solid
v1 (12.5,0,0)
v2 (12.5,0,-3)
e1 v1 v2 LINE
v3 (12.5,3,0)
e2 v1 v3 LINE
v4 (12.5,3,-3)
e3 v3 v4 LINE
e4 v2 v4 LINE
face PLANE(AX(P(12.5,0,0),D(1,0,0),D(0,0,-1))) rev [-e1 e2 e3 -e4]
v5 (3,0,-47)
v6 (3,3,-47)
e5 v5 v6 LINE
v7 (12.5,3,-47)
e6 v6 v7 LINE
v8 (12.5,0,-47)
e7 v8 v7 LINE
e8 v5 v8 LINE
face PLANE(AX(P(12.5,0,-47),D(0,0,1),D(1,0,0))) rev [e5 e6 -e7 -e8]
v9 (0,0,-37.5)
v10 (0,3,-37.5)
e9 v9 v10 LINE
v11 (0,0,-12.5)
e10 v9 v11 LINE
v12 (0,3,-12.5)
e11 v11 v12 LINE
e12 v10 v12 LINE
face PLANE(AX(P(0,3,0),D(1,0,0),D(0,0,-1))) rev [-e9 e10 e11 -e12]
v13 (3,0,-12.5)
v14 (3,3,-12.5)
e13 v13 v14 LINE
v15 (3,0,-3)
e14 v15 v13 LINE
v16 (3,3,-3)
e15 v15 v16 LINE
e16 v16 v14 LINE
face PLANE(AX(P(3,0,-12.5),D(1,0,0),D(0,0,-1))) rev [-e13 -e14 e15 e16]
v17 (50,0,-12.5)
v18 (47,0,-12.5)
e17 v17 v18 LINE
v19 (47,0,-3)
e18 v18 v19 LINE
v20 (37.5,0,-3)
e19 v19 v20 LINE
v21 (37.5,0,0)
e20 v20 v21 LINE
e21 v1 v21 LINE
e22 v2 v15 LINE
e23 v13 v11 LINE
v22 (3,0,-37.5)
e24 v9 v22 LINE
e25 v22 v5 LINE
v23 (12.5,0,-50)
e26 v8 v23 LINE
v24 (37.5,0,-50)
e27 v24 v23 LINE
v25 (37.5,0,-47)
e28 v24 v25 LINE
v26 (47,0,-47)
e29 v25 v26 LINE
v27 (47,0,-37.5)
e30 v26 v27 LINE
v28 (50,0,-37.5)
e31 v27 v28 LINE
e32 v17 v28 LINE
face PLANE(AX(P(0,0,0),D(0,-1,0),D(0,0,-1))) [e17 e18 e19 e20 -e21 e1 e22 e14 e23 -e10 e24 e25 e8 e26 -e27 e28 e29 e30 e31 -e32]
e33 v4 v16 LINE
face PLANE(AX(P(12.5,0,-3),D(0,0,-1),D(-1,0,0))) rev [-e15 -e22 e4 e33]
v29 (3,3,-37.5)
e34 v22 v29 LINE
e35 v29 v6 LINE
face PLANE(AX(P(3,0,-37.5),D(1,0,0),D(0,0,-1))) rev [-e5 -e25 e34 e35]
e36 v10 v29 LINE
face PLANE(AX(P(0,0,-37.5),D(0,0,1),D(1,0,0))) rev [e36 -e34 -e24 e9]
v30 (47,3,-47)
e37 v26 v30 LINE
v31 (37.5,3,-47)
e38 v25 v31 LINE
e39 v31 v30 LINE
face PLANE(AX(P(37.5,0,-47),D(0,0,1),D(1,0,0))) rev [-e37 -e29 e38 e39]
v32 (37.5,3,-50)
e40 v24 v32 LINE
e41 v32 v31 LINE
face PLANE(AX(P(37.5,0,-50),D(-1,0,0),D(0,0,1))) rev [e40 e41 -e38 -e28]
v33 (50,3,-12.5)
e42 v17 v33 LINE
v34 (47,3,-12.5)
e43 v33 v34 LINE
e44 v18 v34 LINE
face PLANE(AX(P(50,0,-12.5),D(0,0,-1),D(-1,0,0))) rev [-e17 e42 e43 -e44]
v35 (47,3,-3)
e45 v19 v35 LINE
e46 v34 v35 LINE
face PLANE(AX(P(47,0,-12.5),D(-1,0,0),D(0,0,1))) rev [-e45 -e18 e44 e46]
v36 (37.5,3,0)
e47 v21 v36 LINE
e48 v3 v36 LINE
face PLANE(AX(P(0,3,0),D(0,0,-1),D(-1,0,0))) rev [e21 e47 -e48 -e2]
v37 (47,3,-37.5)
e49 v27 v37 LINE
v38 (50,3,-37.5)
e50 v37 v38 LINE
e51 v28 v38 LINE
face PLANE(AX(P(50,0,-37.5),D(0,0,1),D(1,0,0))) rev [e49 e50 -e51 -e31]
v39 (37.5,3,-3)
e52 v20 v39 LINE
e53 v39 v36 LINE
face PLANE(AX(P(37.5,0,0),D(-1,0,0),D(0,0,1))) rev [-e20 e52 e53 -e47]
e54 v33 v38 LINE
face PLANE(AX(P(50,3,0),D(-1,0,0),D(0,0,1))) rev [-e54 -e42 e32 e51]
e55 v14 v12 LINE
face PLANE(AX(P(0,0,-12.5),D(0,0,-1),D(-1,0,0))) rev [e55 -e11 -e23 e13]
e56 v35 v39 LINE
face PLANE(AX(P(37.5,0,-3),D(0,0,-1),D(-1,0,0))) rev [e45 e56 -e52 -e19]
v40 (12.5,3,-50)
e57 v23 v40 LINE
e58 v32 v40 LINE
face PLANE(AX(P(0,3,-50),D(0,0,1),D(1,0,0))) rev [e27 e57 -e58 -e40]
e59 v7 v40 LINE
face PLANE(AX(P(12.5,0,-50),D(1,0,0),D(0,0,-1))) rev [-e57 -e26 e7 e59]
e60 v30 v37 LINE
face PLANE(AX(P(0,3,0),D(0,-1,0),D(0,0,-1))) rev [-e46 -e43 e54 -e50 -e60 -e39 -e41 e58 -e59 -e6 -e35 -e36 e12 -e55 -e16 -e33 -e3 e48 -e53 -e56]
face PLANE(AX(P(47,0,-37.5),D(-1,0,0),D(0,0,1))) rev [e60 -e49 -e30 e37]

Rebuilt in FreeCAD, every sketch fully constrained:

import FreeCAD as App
import Part
import Sketcher

V = App.Vector
Q = App.Units.Quantity

doc = App.newDocument("Part")
body = doc.addObject("PartDesign::Body", "Body")

# Sketch on XZ plane
sketch1 = body.newObject("Sketcher::SketchObject", "Sketch")
sketch1.AttachmentSupport = (doc.getObject("XZ_Plane"), [""])
sketch1.MapMode = "FlatFace"
sketch1.addGeometry([
    Part.LineSegment(V(0, -50, 0), V(0, 0, 0)),
    Part.LineSegment(V(0, 0, 0), V(50, 0, 0)),
    Part.LineSegment(V(50, 0, 0), V(50, -50, 0)),
    Part.LineSegment(V(50, -50, 0), V(0, -50, 0)),
], False)
sketch1.addConstraint([
    Sketcher.Constraint("Coincident", 0, 2, 1, 1),
    Sketcher.Constraint("Coincident", 1, 2, 2, 1),
    Sketcher.Constraint("Coincident", 2, 2, 3, 1),
    Sketcher.Constraint("Coincident", 3, 2, 0, 1),
    Sketcher.Constraint("Vertical", 0),
    Sketcher.Constraint("Horizontal", 1),
    Sketcher.Constraint("Vertical", 2),
    Sketcher.Constraint("Horizontal", 3),
    Sketcher.Constraint("Coincident", 0, 2, -1, 1),
    Sketcher.Constraint("Equal", 3, 0),
    Sketcher.Constraint("DistanceX", 1, 1, 1, 2, Q("50 mm")),
])
pad1 = body.newObject("PartDesign::Pad", "Pad")
pad1.Profile = sketch1
pad1.Length = 3
pad1.Reversed = True

# Sketch on XZ plane
sketch2 = body.newObject("Sketcher::SketchObject", "Sketch001")
sketch2.AttachmentSupport = (doc.getObject("XZ_Plane"), [""])
sketch2.MapMode = "FlatFace"
sketch2.AttachmentOffset = App.Placement(V(0, 0, -3), App.Rotation())
sketch2.addGeometry([
    Part.LineSegment(V(0, -37.5, 0), V(3, -37.5, 0)),  # 0
    Part.LineSegment(V(3, -37.5, 0), V(3, -47, 0)),  # 1
    Part.LineSegment(V(3, -47, 0), V(12.5, -47, 0)),  # 2
    Part.LineSegment(V(12.5, -47, 0), V(12.5, -50, 0)),  # 3
    Part.LineSegment(V(12.5, -50, 0), V(0, -50, 0)),  # 4
    Part.LineSegment(V(0, -50, 0), V(0, -37.5, 0)),  # 5
    Part.LineSegment(V(3, -12.5, 0), V(0, -12.5, 0)),  # 6
    Part.LineSegment(V(0, -12.5, 0), V(0, 0, 0)),  # 7
    Part.LineSegment(V(0, 0, 0), V(12.5, 0, 0)),  # 8
    Part.LineSegment(V(12.5, 0, 0), V(12.5, -3, 0)),  # 9
    Part.LineSegment(V(12.5, -3, 0), V(3, -3, 0)),  # 10
    Part.LineSegment(V(3, -3, 0), V(3, -12.5, 0)),  # 11
    Part.LineSegment(V(50, -12.5, 0), V(47, -12.5, 0)),  # 12
    Part.LineSegment(V(47, -12.5, 0), V(47, -3, 0)),  # 13
    Part.LineSegment(V(47, -3, 0), V(37.5, -3, 0)),  # 14
    Part.LineSegment(V(37.5, -3, 0), V(37.5, 0, 0)),  # 15
    Part.LineSegment(V(37.5, 0, 0), V(50, 0, 0)),  # 16
    Part.LineSegment(V(50, 0, 0), V(50, -12.5, 0)),  # 17
    Part.LineSegment(V(37.5, -50, 0), V(37.5, -47, 0)),  # 18
    Part.LineSegment(V(37.5, -47, 0), V(47, -47, 0)),  # 19
    Part.LineSegment(V(47, -47, 0), V(47, -37.5, 0)),  # 20
    Part.LineSegment(V(47, -37.5, 0), V(50, -37.5, 0)),  # 21
    Part.LineSegment(V(50, -37.5, 0), V(50, -50, 0)),  # 22
    Part.LineSegment(V(50, -50, 0), V(37.5, -50, 0)),  # 23
], False)
sketch2.addConstraint([
    Sketcher.Constraint("Coincident", 0, 2, 1, 1),
    Sketcher.Constraint("Coincident", 1, 2, 2, 1),
    Sketcher.Constraint("Coincident", 2, 2, 3, 1),
    Sketcher.Constraint("Coincident", 3, 2, 4, 1),
    Sketcher.Constraint("Coincident", 4, 2, 5, 1),
    Sketcher.Constraint("Coincident", 5, 2, 0, 1),
    Sketcher.Constraint("Coincident", 6, 2, 7, 1),
    Sketcher.Constraint("Coincident", 7, 2, 8, 1),
    Sketcher.Constraint("Coincident", 8, 2, 9, 1),
    Sketcher.Constraint("Coincident", 9, 2, 10, 1),
    Sketcher.Constraint("Coincident", 10, 2, 11, 1),
    Sketcher.Constraint("Coincident", 11, 2, 6, 1),
    Sketcher.Constraint("Coincident", 12, 2, 13, 1),
    Sketcher.Constraint("Coincident", 13, 2, 14, 1),
    Sketcher.Constraint("Coincident", 14, 2, 15, 1),
    Sketcher.Constraint("Coincident", 15, 2, 16, 1),
    Sketcher.Constraint("Coincident", 16, 2, 17, 1),
    Sketcher.Constraint("Coincident", 17, 2, 12, 1),
    Sketcher.Constraint("Coincident", 18, 2, 19, 1),
    Sketcher.Constraint("Coincident", 19, 2, 20, 1),
    Sketcher.Constraint("Coincident", 20, 2, 21, 1),
    Sketcher.Constraint("Coincident", 21, 2, 22, 1),
    Sketcher.Constraint("Coincident", 22, 2, 23, 1),
    Sketcher.Constraint("Coincident", 23, 2, 18, 1),
    Sketcher.Constraint("Horizontal", 0),
    Sketcher.Constraint("Vertical", 1),
    Sketcher.Constraint("Horizontal", 2),
    Sketcher.Constraint("Vertical", 3),
    Sketcher.Constraint("Horizontal", 4),
    Sketcher.Constraint("Vertical", 5),
    Sketcher.Constraint("Horizontal", 6),
    Sketcher.Constraint("Vertical", 7),
    Sketcher.Constraint("Horizontal", 8),
    Sketcher.Constraint("Vertical", 9),
    Sketcher.Constraint("Horizontal", 10),
    Sketcher.Constraint("Vertical", 11),
    Sketcher.Constraint("Horizontal", 12),
    Sketcher.Constraint("Vertical", 13),
    Sketcher.Constraint("Horizontal", 14),
    Sketcher.Constraint("Vertical", 15),
    Sketcher.Constraint("Horizontal", 16),
    Sketcher.Constraint("Vertical", 17),
    Sketcher.Constraint("Vertical", 18),
    Sketcher.Constraint("Horizontal", 19),
    Sketcher.Constraint("Vertical", 20),
    Sketcher.Constraint("Horizontal", 21),
    Sketcher.Constraint("Vertical", 22),
    Sketcher.Constraint("Horizontal", 23),
    Sketcher.Constraint("Coincident", 7, 2, -1, 1),
    Sketcher.Constraint("PointOnObject", 4, 2, -2),
    Sketcher.Constraint("PointOnObject", 15, 2, -1),
    Sketcher.Constraint("Horizontal", 11, 2, 12, 2),
    Sketcher.Constraint("Horizontal", 10, 2, 13, 2),
    Sketcher.Constraint("Horizontal", 2, 2, 18, 2),
    Sketcher.Constraint("Horizontal", 5, 2, 20, 2),
    Sketcher.Constraint("Horizontal", 4, 2, 22, 2),
    Sketcher.Constraint("Vertical", 3, 2, 8, 2),
    Sketcher.Constraint("Vertical", 1, 2, 10, 2),
    Sketcher.Constraint("Vertical", 15, 2, 18, 2),
    Sketcher.Constraint("Vertical", 13, 2, 19, 2),
    Sketcher.Constraint("Vertical", 17, 2, 21, 2),
    Sketcher.Constraint("Equal", 6, 12),
    Sketcher.Constraint("Equal", 10, 14),
    Sketcher.Constraint("Equal", 19, 1),
    Sketcher.Constraint("Equal", 21, 3),
    Sketcher.Constraint("Equal", 5, 7),
    Sketcher.Constraint("Equal", 3, 9),
    Sketcher.Constraint("DistanceX", 0, 1, 0, 2, Q("3 mm")),
    Sketcher.Constraint("DistanceX", 2, 1, 2, 2, Q("9.5 mm")),
    Sketcher.Constraint("DistanceY", 1, 2, -1, 1, Q("47 mm")),
    Sketcher.Constraint("DistanceX", -1, 1, 12, 2, Q("47 mm")),
])
pocket1 = body.newObject("PartDesign::Pocket", "Pocket")
pocket1.Profile = sketch2
pocket1.Length = 3
pocket1.Reversed = True

doc.recompute()
